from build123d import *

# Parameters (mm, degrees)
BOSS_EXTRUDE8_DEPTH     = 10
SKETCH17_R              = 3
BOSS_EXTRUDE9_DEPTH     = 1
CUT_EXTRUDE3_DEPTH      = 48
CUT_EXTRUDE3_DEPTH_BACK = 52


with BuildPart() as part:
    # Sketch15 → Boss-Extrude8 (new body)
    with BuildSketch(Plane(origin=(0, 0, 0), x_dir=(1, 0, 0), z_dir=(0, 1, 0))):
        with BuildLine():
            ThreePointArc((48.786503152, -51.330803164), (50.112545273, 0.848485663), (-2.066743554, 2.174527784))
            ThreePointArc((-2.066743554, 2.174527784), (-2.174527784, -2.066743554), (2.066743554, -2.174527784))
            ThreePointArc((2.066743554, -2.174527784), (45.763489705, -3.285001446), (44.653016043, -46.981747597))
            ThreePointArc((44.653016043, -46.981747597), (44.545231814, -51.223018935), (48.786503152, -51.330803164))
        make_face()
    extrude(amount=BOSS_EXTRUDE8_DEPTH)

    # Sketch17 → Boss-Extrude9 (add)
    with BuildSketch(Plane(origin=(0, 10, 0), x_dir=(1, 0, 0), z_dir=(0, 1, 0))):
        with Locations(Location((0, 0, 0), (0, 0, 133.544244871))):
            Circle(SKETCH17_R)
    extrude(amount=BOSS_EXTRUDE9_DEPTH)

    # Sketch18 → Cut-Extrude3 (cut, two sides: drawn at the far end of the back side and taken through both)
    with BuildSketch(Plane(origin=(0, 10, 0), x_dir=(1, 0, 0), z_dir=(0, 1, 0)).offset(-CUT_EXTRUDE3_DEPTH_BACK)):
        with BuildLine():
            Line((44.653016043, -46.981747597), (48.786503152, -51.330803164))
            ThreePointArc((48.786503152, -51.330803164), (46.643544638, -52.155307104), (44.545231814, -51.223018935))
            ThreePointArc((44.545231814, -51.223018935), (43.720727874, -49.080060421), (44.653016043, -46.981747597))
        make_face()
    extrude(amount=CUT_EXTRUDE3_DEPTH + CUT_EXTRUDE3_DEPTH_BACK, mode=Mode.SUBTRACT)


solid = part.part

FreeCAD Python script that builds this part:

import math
import FreeCAD as App
import Part
import Sketcher

doc = App.newDocument("Part")
body = doc.addObject("PartDesign::Body", "Body")

sketch1 = doc.addObject("Sketcher::SketchObject", "Sketch")
body.addObject(sketch1)
sketch1.AttachmentSupport = (doc.XZ_Plane, [""])
sketch1.MapMode = "FlatFace"
sketch1.addGeometry([
    Part.ArcOfCircle(Part.Circle(App.Vector(23.35988, 24.578138, 0), App.Vector(0, 0, 1), 36.908241), math.radians(-133.544245), math.radians(46.455755)),
    Part.ArcOfCircle(Part.Circle(App.Vector(0, 0, 0), App.Vector(0, 0, 1), 3), math.radians(46.455755), math.radians(226.455755)),
    Part.ArcOfCircle(Part.Circle(App.Vector(23.35988, 24.578138, 0), App.Vector(0, 0, 1), 30.908241), math.radians(-133.544245), math.radians(46.455755)),
    Part.ArcOfCircle(Part.Circle(App.Vector(46.71976, 49.156275, 0), App.Vector(0, 0, 1), 3), math.radians(46.455755), math.radians(226.455755)),
], False)
sketch1.addConstraint([
    Sketcher.Constraint("Tangent", 0, 1, 1, 2),
    Sketcher.Constraint("Tangent", 1, 1, 2, 1),
    Sketcher.Constraint("Tangent", 2, 2, 3, 2),
    Sketcher.Constraint("Tangent", 3, 1, 0, 2),
    Sketcher.Constraint("Coincident", 1, 3, -1, 1),
    Sketcher.Constraint("Coincident", 2, 3, 0, 3),
    Sketcher.Constraint("Radius", 1, 3.0),
    Sketcher.Constraint("Radius", 0, 36.908241),
    Sketcher.Constraint("DistanceX", -1, 1, 0, 3, 23.35988),
    Sketcher.Constraint("DistanceX", -1, 1, 3, 3, 46.71976),
])
pad1 = doc.addObject("PartDesign::Pad", "Pad")
body.addObject(pad1)
pad1.Profile = sketch1
pad1.Length = 10
pad1.Reversed = True

sketch2 = doc.addObject("Sketcher::SketchObject", "Sketch001")
body.addObject(sketch2)
sketch2.AttachmentSupport = (doc.XZ_Plane, [""])
sketch2.MapMode = "FlatFace"
sketch2.AttachmentOffset = App.Placement(App.Vector(0, 0, -10), App.Rotation())
sketch2.addGeometry(Part.Circle(App.Vector(0, 0, 0), App.Vector(0, 0, 1), 3), False)
sketch2.addConstraint([
    Sketcher.Constraint("Coincident", 0, 3, -1, 1),
    Sketcher.Constraint("Diameter", 0, 6.0),
])
pad2 = doc.addObject("PartDesign::Pad", "Pad001")
body.addObject(pad2)
pad2.Profile = sketch2
pad2.Length = 1
pad2.Reversed = True

sketch3 = doc.addObject("Sketcher::SketchObject", "Sketch002")
body.addObject(sketch3)
sketch3.AttachmentSupport = (doc.XZ_Plane, [""])
sketch3.MapMode = "FlatFace"
sketch3.AttachmentOffset = App.Placement(App.Vector(0, 0, -10), App.Rotation())
sketch3.addGeometry([
    Part.LineSegment(App.Vector(48.786503, 51.330803, 0), App.Vector(44.653016, 46.981748, 0)),
    Part.ArcOfCircle(Part.Circle(App.Vector(46.71976, 49.156275, 0), App.Vector(0, 0, 1), 3), math.radians(136.455755), math.radians(226.455755)),
    Part.ArcOfCircle(Part.Circle(App.Vector(46.71976, 49.156275, 0), App.Vector(0, 0, 1), 3), math.radians(46.455755), math.radians(136.455755)),
], False)
sketch3.addConstraint([
    Sketcher.Constraint("Coincident", 0, 2, 1, 2),
    Sketcher.Constraint("Tangent", 1, 1, 2, 2),
    Sketcher.Constraint("Coincident", 2, 1, 0, 1),
    Sketcher.Constraint("Equal", 1, 2),
    Sketcher.Constraint("Radius", 1, 3.0),
    Sketcher.Constraint("DistanceX", -1, 1, 1, 3, 46.71976),
    Sketcher.Constraint("DistanceX", -1, 1, 1, 1, 44.545232),
    Sketcher.Constraint("DistanceY", -1, 1, 1, 1, 51.223019),
    Sketcher.Constraint("DistanceY", 0, 2, 1, 1, 4.241271),
    Sketcher.Constraint("DistanceX", 1, 1, 2, 1, 4.241271),
])
pocket1 = doc.addObject("PartDesign::Pocket", "Pocket")
body.addObject(pocket1)
pocket1.Profile = sketch3
pocket1.Type = "ThroughAll"
pocket1.Midplane = True

doc.recompute()
